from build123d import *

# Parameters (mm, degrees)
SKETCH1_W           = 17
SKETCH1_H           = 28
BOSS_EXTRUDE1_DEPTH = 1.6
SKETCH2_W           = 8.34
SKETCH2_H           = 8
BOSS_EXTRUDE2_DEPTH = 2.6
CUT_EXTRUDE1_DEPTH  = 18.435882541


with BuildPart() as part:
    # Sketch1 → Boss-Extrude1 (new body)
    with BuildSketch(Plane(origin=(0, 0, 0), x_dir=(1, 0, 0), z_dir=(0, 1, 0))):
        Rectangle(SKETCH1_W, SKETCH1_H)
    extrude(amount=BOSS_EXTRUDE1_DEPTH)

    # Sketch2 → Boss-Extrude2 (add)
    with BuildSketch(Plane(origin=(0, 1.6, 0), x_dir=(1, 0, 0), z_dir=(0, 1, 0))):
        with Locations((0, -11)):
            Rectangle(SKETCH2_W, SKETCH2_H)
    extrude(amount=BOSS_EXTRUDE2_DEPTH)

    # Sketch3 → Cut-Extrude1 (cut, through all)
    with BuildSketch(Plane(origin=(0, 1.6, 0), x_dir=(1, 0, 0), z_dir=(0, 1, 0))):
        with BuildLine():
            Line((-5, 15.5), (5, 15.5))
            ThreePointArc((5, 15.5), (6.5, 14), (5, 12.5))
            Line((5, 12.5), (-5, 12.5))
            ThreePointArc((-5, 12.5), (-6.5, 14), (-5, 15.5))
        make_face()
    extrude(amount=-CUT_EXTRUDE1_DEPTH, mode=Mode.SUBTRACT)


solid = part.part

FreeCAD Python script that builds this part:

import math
import FreeCAD as App
import Part
import Sketcher
from FreeCAD import Vector


def add_polygon(sketch, points):
    """Adds a closed chain of lines whose ends are joined by coincident constraints."""
    first, n = sketch.GeometryCount, len(points)
    for a, b in zip(points, points[1:] + points[:1]):
        sketch.addGeometry(Part.LineSegment(App.Vector(*a, 0), App.Vector(*b, 0)), False)
    for i in range(n):
        sketch.addConstraint(Sketcher.Constraint("Coincident", first + i, 2, first + (i + 1) % n, 1))

doc = App.newDocument("Part")
body = doc.addObject("PartDesign::Body", "Body")

# Sketch on XZ plane
sketch1 = doc.addObject("Sketcher::SketchObject", "Sketch")
body.addObject(sketch1)
sketch1.AttachmentSupport = (doc.XZ_Plane, [""])
sketch1.MapMode = "FlatFace"
add_polygon(sketch1, [(-8, -14), (-8, 14), (8, 14), (8, -14)])  # lines 0-3
sketch1.addConstraint([
    Sketcher.Constraint("Vertical", 0),
    Sketcher.Constraint("Horizontal", 1),
    Sketcher.Constraint("Vertical", 2),
    Sketcher.Constraint("Horizontal", 3),
    Sketcher.Constraint("Symmetric", 0, 2, 2, 2, -1, 1),
    Sketcher.Constraint("DistanceX", 1, 1, 1, 2, 17.0),
    Sketcher.Constraint("DistanceY", 0, 1, 0, 2, 28.0),
])
pad1 = doc.addObject("PartDesign::Pad", "Pad")
body.addObject(pad1)
pad1.Profile = sketch1
pad1.Length = 1.6
pad1.Reversed = True

# Sketch on XZ plane
sketch2 = doc.addObject("Sketcher::SketchObject", "Sketch001")
body.addObject(sketch2)
sketch2.AttachmentSupport = (doc.XZ_Plane, [""])
sketch2.MapMode = "FlatFace"
sketch2.AttachmentOffset = App.Placement(Vector(0, 0, -1.6), App.Rotation())
add_polygon(sketch2, [(-4, 7), (-4, 15), (4, 15), (4, 7)])  # lines 0-3
sketch2.addConstraint([
    Sketcher.Constraint("Vertical", 0),
    Sketcher.Constraint("Horizontal", 1),
    Sketcher.Constraint("Vertical", 2),
    Sketcher.Constraint("Horizontal", 3),
    Sketcher.Constraint("DistanceY", 0, 1, 0, 2, 8.0),
    Sketcher.Constraint("DistanceY", -1, 1, 0, 2, 15.0),
    Sketcher.Constraint("DistanceX", 1, 1, 1, 2, 8.34),
    Sketcher.Constraint("DistanceX", 0, 2, -1, 1, 4.17),
])
pad2 = doc.addObject("PartDesign::Pad", "Pad001")
body.addObject(pad2)
pad2.Profile = sketch2
pad2.Length = 2.6
pad2.Reversed = True

# Sketch on XZ plane
sketch3 = doc.addObject("Sketcher::SketchObject", "Sketch002")
body.addObject(sketch3)
sketch3.AttachmentSupport = (doc.XZ_Plane, [""])
sketch3.MapMode = "FlatFace"
sketch3.AttachmentOffset = App.Placement(Vector(0, 0, -1.6), App.Rotation())
sketch3.addGeometry([
    Part.LineSegment(Vector(5, -15.5, 0), Vector(-5, -15.5, 0)),
    Part.ArcOfCircle(Part.Circle(Vector(-5, -14, 0), Vector(0, 0, 1), 1.5), math.radians(90), math.radians(270)),
    Part.LineSegment(Vector(-5, -12.5, 0), Vector(5, -12.5, 0)),
    Part.ArcOfCircle(Part.Circle(Vector(5, -14, 0), Vector(0, 0, 1), 1.5), math.radians(-90), math.radians(90)),
], False)
sketch3.addConstraint([
    Sketcher.Constraint("Tangent", 0, 2, 1, 2),
    Sketcher.Constraint("Tangent", 1, 1, 2, 1),
    Sketcher.Constraint("Tangent", 2, 2, 3, 2),
    Sketcher.Constraint("Tangent", 3, 1, 0, 1),
    Sketcher.Constraint("Horizontal", 0),
    Sketcher.Constraint("Horizontal", 2),
    Sketcher.Constraint("Radius", 1, 1.5),
    Sketcher.Constraint("DistanceX", 0, 2, 0, 1, 10.0),
    Sketcher.Constraint("DistanceX", 1, 3, -1, 1, 5.0),
    Sketcher.Constraint("DistanceY", 1, 3, -1, 1, 14.0),
])
pocket1 = doc.addObject("PartDesign::Pocket", "Pocket")
body.addObject(pocket1)
pocket1.Profile = sketch3
pocket1.Type = "ThroughAll"
pocket1.Reversed = True

doc.recompute()
